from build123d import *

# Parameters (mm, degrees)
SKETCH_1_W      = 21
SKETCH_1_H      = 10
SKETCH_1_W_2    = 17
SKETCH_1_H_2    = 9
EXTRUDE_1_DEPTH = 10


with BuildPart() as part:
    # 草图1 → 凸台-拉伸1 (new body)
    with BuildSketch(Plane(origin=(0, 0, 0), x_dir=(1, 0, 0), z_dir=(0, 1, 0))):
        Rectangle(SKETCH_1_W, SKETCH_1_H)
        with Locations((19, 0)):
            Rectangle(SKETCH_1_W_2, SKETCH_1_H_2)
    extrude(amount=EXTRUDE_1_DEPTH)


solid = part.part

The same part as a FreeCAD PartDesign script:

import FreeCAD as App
import Part
import Sketcher
from FreeCAD import Vector


def add_polygon(sketch, points):
    """Adds a closed chain of lines whose ends are joined by coincident constraints."""
    first, n = sketch.GeometryCount, len(points)
    for a, b in zip(points, points[1:] + points[:1]):
        sketch.addGeometry(Part.LineSegment(App.Vector(*a, 0), App.Vector(*b, 0)), False)
    for i in range(n):
        sketch.addConstraint(Sketcher.Constraint("Coincident", first + i, 2, first + (i + 1) % n, 1))

doc = App.newDocument("Part")
body = doc.addObject("PartDesign::Body", "Body")

# Sketch on XZ plane
sketch1 = body.newObject("Sketcher::SketchObject", "Sketch")
sketch1.AttachmentSupport = (doc.getObject("XZ_Plane"), [""])
sketch1.MapMode = "FlatFace"
add_polygon(sketch1, [(-10.5, -5), (-10.5, 5), (10.5, 5), (10.5, 4.5), (27.5, 4.5), (27.5, -4.5), (10.5, -4.5), (10.5, -5)])  # lines 0-7
sketch1.addConstraint([
    Sketcher.Constraint("Vertical", 0),
    Sketcher.Constraint("Horizontal", 1),
    Sketcher.Constraint("Vertical", 2),
    Sketcher.Constraint("Horizontal", 3),
    Sketcher.Constraint("Vertical", 4),
    Sketcher.Constraint("Horizontal", 5),
    Sketcher.Constraint("Vertical", 6),
    Sketcher.Constraint("Horizontal", 7),
    Sketcher.Constraint("Symmetric", 0, 2, 6, 2, -1, 1),
    Sketcher.Constraint("Symmetric", 2, 2, 5, 2, -1),
    Sketcher.Constraint("DistanceX", 1, 1, 1, 2, 21.0),
    Sketcher.Constraint("DistanceX", 3, 1, 3, 2, 17.0),
    Sketcher.Constraint("DistanceY", 0, 1, 0, 2, 10.0),
    Sketcher.Constraint("DistanceY", 4, 2, 4, 1, 9.0),
])
pad1 = body.newObject("PartDesign::Pad", "Pad")
pad1.Profile = sketch1
pad1.Length = 10
pad1.Reversed = True

doc.recompute()
